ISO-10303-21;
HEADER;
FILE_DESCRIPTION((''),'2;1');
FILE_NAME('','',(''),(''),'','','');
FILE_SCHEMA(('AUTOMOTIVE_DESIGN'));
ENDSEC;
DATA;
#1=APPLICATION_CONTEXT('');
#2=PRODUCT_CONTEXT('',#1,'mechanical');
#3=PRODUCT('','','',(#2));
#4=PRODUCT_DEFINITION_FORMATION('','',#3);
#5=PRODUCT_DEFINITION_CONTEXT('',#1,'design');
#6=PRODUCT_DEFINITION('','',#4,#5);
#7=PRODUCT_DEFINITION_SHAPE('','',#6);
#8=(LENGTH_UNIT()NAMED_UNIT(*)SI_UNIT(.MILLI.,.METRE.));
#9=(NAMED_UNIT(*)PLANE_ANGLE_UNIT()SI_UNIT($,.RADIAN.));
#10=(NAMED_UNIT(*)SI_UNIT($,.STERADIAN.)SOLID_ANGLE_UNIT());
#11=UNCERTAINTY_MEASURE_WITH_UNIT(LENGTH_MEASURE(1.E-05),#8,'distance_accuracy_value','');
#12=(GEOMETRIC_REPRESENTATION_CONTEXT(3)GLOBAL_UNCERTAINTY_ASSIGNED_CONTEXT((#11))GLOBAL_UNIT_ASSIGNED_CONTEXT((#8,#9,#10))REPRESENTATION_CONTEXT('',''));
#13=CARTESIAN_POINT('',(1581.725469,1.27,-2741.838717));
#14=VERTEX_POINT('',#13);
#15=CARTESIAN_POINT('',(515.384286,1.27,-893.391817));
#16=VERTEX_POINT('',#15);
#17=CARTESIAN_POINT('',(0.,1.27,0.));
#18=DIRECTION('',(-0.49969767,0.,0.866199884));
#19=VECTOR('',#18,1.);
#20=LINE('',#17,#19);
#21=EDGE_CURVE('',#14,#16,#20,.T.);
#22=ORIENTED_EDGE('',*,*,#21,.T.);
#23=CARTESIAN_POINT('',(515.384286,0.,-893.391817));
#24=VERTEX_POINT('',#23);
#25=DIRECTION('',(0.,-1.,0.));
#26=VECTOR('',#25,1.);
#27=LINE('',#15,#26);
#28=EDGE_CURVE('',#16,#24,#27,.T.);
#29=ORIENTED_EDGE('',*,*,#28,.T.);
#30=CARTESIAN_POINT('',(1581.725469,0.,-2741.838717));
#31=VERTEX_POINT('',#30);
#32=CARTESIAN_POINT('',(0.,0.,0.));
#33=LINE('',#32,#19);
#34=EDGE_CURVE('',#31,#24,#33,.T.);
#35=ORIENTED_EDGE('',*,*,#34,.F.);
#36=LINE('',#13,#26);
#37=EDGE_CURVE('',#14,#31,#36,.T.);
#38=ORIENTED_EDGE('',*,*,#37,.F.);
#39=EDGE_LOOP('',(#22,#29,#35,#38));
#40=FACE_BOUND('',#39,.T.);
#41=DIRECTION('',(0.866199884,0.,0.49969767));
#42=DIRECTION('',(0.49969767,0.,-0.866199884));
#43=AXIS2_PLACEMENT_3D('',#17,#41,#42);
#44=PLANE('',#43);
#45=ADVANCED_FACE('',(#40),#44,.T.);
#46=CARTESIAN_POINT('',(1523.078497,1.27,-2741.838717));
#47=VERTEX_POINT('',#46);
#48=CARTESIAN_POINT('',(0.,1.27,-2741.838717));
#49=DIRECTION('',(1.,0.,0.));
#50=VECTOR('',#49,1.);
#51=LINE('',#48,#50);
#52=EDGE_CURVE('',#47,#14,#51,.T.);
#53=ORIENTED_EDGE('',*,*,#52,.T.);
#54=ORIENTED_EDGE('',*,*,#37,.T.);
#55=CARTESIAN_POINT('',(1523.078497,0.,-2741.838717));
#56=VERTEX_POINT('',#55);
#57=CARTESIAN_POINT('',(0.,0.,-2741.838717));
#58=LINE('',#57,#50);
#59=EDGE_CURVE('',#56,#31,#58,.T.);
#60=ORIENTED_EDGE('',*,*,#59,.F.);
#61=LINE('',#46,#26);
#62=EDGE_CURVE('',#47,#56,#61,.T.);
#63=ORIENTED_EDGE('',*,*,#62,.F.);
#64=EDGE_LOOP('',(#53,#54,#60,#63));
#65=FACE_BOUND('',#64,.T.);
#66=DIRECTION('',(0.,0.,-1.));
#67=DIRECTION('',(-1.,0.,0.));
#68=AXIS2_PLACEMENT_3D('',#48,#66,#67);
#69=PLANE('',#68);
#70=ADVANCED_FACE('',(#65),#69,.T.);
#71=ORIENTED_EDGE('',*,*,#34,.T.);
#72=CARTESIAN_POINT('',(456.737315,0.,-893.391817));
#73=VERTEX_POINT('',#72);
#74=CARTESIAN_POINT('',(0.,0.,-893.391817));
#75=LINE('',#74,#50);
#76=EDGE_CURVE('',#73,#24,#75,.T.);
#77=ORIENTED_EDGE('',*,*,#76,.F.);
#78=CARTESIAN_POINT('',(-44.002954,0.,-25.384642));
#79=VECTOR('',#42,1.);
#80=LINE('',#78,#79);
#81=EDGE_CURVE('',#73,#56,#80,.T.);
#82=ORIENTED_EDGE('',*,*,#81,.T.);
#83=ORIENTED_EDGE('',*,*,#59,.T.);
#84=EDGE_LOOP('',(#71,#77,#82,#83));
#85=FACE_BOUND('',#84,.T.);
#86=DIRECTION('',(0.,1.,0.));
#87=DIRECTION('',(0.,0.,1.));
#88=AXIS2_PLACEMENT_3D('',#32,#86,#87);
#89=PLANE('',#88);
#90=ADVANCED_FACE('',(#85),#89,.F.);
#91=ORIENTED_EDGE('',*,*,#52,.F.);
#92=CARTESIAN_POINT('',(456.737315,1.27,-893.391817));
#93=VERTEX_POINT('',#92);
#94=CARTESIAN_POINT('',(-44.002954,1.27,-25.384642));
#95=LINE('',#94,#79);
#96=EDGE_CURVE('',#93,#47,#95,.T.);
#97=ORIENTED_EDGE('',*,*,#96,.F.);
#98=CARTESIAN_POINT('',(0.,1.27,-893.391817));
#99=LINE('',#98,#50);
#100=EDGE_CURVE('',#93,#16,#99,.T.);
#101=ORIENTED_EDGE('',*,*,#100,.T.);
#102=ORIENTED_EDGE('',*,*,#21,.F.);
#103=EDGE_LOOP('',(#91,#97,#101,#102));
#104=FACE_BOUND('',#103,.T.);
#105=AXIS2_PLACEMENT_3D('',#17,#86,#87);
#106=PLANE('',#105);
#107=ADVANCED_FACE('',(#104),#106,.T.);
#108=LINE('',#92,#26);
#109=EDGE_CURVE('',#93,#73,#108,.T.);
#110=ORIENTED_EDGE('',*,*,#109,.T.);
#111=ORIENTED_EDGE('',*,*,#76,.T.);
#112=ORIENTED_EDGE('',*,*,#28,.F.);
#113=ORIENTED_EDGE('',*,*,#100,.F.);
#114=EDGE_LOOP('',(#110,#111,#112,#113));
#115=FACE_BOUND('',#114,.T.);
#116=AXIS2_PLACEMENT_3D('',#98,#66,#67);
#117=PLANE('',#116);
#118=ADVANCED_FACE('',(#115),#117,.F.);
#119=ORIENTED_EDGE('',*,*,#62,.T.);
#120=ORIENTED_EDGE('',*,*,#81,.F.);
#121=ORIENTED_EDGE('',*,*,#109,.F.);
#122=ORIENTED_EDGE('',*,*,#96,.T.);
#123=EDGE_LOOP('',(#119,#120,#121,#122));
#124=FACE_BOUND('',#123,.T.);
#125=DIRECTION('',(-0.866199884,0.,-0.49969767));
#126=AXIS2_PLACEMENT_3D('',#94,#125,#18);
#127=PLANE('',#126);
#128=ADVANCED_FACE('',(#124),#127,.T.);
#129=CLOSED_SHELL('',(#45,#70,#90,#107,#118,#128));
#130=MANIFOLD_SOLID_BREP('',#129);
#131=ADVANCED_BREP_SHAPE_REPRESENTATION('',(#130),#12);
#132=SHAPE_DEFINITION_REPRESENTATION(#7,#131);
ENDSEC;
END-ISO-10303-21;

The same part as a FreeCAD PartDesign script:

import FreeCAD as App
import Part
import Sketcher

V = App.Vector
Q = App.Units.Quantity


def add_polygon(sketch, points):
    """Adds a closed chain of lines whose ends are joined by coincident constraints."""
    first, n = sketch.GeometryCount, len(points)
    for a, b in zip(points, points[1:] + points[:1]):
        sketch.addGeometry(Part.LineSegment(App.Vector(*a, 0), App.Vector(*b, 0)), False)
    for i in range(n):
        sketch.addConstraint(Sketcher.Constraint("Coincident", first + i, 2, first + (i + 1) % n, 1))

doc = App.newDocument("Part")
body = doc.addObject("PartDesign::Body", "Body")

# Sketch on XZ plane
sketch1 = body.newObject("Sketcher::SketchObject", "Sketch")
sketch1.AttachmentSupport = (doc.getObject("XZ_Plane"), [""])
sketch1.MapMode = "FlatFace"
add_polygon(sketch1, [(457, -893), (515, -893), (1582, -2742), (1523, -2742)])  # lines 0-3
sketch1.addConstraint(Sketcher.Constraint("Horizontal", 0))
sketch1.addConstraint(Sketcher.Constraint("Horizontal", 2))
sketch1.addConstraint(Sketcher.Constraint("Parallel", 1, 3))
sketch1.addConstraint(Sketcher.Constraint("Angle", 1, Q("-60.02 deg")))
sketch1.addConstraint(Sketcher.Constraint("DistanceY", 1, 2, 0, 2, Q("72.7735 in")))
sketch1.addConstraint(Sketcher.Constraint("DistanceX", 0, 1, 0, 2, Q("58.646972 mm")))
sketch1.addConstraint(Sketcher.Constraint("DistanceX", -1, 1, 1, 2, Q("1581.725469 mm")))
sketch1.addConstraint(Sketcher.Constraint("DistanceY", 0, 2, -1, 1, Q("893.391817 mm")))
pad1 = body.newObject("PartDesign::Pad", "Pad")
pad1.Profile = sketch1
pad1.Length = Q("0.05 in")
pad1.Reversed = True

doc.recompute()
